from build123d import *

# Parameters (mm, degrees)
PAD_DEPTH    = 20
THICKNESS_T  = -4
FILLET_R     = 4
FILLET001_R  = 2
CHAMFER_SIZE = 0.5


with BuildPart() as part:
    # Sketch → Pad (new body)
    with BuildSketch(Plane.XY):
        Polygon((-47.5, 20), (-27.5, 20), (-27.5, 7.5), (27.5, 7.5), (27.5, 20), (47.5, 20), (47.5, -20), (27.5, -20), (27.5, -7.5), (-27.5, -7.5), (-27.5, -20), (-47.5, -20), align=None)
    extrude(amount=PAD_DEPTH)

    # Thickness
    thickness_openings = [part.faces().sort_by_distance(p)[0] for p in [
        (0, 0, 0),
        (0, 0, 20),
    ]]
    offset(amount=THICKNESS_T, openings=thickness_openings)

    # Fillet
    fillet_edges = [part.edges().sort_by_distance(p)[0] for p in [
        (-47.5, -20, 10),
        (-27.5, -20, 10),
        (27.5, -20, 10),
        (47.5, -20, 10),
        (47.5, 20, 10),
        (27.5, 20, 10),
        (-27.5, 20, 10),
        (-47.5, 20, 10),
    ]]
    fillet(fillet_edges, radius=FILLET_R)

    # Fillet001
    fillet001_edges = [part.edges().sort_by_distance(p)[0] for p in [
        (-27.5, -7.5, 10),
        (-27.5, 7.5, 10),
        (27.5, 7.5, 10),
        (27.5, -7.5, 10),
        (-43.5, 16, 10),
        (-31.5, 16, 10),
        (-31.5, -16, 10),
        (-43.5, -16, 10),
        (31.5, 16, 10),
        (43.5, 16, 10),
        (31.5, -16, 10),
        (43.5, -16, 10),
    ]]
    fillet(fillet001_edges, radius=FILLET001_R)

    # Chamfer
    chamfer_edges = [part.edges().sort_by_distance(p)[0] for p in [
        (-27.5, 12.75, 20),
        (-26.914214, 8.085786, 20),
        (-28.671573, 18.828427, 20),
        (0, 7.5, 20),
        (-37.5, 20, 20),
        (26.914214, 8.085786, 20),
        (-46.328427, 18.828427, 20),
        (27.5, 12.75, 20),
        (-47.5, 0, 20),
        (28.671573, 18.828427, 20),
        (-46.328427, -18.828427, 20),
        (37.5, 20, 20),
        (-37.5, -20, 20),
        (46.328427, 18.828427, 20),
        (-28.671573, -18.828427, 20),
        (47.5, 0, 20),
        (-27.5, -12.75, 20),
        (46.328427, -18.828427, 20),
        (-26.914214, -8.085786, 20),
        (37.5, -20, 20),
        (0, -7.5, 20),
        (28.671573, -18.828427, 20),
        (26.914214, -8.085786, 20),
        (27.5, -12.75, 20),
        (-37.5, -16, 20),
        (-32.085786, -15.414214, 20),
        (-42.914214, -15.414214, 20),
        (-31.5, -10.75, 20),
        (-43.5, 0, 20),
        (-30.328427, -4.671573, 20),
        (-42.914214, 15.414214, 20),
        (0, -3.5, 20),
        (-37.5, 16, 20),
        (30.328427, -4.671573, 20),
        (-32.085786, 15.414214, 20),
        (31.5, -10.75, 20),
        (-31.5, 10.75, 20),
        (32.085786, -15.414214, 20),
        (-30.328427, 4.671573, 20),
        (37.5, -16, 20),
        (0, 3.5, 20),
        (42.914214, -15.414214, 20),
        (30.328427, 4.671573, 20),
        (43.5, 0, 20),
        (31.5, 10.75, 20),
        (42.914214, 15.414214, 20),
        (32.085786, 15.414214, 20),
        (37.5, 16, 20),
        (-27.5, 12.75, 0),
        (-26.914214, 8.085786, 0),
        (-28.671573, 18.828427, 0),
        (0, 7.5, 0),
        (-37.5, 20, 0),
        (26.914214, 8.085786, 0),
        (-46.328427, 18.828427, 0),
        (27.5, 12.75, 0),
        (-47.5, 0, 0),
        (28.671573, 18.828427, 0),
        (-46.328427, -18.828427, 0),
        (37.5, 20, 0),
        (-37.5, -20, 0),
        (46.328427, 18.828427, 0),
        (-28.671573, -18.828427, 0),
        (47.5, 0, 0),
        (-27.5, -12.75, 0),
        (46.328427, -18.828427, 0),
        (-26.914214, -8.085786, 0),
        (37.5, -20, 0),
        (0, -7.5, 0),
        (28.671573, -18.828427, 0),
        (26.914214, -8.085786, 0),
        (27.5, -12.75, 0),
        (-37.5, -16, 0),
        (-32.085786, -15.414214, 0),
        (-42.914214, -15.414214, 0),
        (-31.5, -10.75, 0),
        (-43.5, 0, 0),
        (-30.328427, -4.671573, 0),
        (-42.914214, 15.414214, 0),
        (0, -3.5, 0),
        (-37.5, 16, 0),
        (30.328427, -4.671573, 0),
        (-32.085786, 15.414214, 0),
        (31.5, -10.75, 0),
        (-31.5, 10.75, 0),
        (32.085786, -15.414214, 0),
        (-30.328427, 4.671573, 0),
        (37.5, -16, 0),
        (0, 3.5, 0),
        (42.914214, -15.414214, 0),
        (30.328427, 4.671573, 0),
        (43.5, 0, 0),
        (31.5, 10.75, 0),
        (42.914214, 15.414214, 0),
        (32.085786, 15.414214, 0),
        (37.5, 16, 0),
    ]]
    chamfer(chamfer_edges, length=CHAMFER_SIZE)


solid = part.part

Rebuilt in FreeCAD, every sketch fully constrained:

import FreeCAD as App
import Part
import Sketcher
from FreeCAD import Vector


def edges_at(feature, points):
    """Names of the edges that pass closest to the given points."""
    edges = feature.Shape.Edges
    near = lambda p: min(range(len(edges)), key=lambda i: edges[i].distToShape(Part.Vertex(*p))[0])
    return sorted({f"Edge{near(p) + 1}" for p in points})


def faces_at(feature, points):
    """Names of the faces that lie closest to the given points."""
    faces = feature.Shape.Faces
    near = lambda p: min(range(len(faces)), key=lambda i: faces[i].distToShape(Part.Vertex(*p))[0])
    return sorted({f"Face{near(p) + 1}" for p in points})


def add_polygon(sketch, points):
    """Adds a closed chain of lines whose ends are joined by coincident constraints."""
    first, n = sketch.GeometryCount, len(points)
    for a, b in zip(points, points[1:] + points[:1]):
        sketch.addGeometry(Part.LineSegment(App.Vector(*a, 0), App.Vector(*b, 0)), False)
    for i in range(n):
        sketch.addConstraint(Sketcher.Constraint("Coincident", first + i, 2, first + (i + 1) % n, 1))

doc = App.newDocument("Part")
params = doc.addObject("Spreadsheet::Sheet", "Params")
for row, (alias, value) in enumerate([
    ("sketch1_width", "20 mm"),
    ("sketch1_width2", "55 mm"),
    ("sketch1_height", "40 mm"),
    ("sketch1_height2", "12.5 mm"),
    ("pad1_length", "20 mm"),
    ("thickness_wall", "4 mm"),
    ("fillet_radius", "4 mm"),
    ("fillet2_radius", "2 mm"),
    ("chamfer_size", "0.5 mm"),
], start=1):
    params.set(f"A{row}", alias)
    params.set(f"B{row}", "=" + value)
    params.setAlias(f"B{row}", alias)

body = doc.addObject("PartDesign::Body", "Body")

# Sketch on XY plane
sketch1 = body.newObject("Sketcher::SketchObject", "Sketch")
sketch1.AttachmentSupport = (doc.getObject("XY_Plane"), [""])
sketch1.MapMode = "FlatFace"
add_polygon(sketch1, [(-28, 20), (-48, 20), (-48, -20), (-28, -20), (-28, -8), (28, -8), (28, -20), (48, -20), (48, 20), (28, 20), (28, 8), (-28, 8)])  # lines 0-11
sketch1.addConstraint(Sketcher.Constraint("Horizontal", 0))
sketch1.addConstraint(Sketcher.Constraint("Vertical", 1))
sketch1.addConstraint(Sketcher.Constraint("Horizontal", 2))
sketch1.addConstraint(Sketcher.Constraint("Vertical", 3))
sketch1.addConstraint(Sketcher.Constraint("Horizontal", 4))
sketch1.addConstraint(Sketcher.Constraint("Vertical", 5))
sketch1.addConstraint(Sketcher.Constraint("Horizontal", 6))
sketch1.addConstraint(Sketcher.Constraint("Vertical", 7))
sketch1.addConstraint(Sketcher.Constraint("Horizontal", 8))
sketch1.addConstraint(Sketcher.Constraint("Vertical", 9))
sketch1.addConstraint(Sketcher.Constraint("Horizontal", 10))
sketch1.addConstraint(Sketcher.Constraint("Vertical", 11))
sketch1.addConstraint(Sketcher.Constraint("Symmetric", 0, 2, 6, 2, -1, 1))
sketch1.addConstraint(Sketcher.Constraint("Symmetric", 2, 2, 8, 2, -1, 1))
sketch1.addConstraint(Sketcher.Constraint("Symmetric", 4, 2, 10, 2, -1, 1))
sketch1.addConstraint(Sketcher.Constraint("Symmetric", 2, 2, 5, 2, -2))
sketch1.addConstraint(Sketcher.Constraint("DistanceX", 0, 2, 0, 1, 20.0))
sketch1.addConstraint(Sketcher.Constraint("DistanceX", 4, 1, 4, 2, 55.0))
sketch1.addConstraint(Sketcher.Constraint("DistanceY", 1, 2, 1, 1, 40.0))
sketch1.addConstraint(Sketcher.Constraint("DistanceY", 3, 1, 3, 2, 12.5))
sketch1.setExpression("Constraints[28]", "Params.sketch1_width")
sketch1.setExpression("Constraints[29]", "Params.sketch1_width2")
sketch1.setExpression("Constraints[30]", "Params.sketch1_height")
sketch1.setExpression("Constraints[31]", "Params.sketch1_height2")
pad1 = body.newObject("PartDesign::Pad", "Pad")
pad1.Profile = sketch1
pad1.setExpression("Length", "Params.pad1_length")
doc.recompute()

thickness = body.newObject("PartDesign::Thickness", "Thickness")
thickness.Base = (pad1, faces_at(pad1, [(0, 0, 0), (0, 0, 20)]))
thickness.setExpression("Value", "Params.thickness_wall")
thickness.Reversed = True
thickness.Join = "Arc"
doc.recompute()

fillet = body.newObject("PartDesign::Fillet", "Fillet")
fillet.Base = (thickness, edges_at(thickness, [
    (-47.5, -20, 10),
    (-27.5, -20, 10),
    (27.5, -20, 10),
    (47.5, -20, 10),
    (47.5, 20, 10),
    (27.5, 20, 10),
    (-27.5, 20, 10),
    (-47.5, 20, 10),
]))
fillet.setExpression("Radius", "Params.fillet_radius")
doc.recompute()

fillet2 = body.newObject("PartDesign::Fillet", "Fillet001")
fillet2.Base = (fillet, edges_at(fillet, [
    (-27.5, -7.5, 10),
    (-27.5, 7.5, 10),
    (27.5, 7.5, 10),
    (27.5, -7.5, 10),
    (-43.5, 16, 10),
    (-31.5, 16, 10),
    (-31.5, -16, 10),
    (-43.5, -16, 10),
    (31.5, 16, 10),
    (43.5, 16, 10),
    (31.5, -16, 10),
    (43.5, -16, 10),
]))
fillet2.setExpression("Radius", "Params.fillet2_radius")
doc.recompute()

chamfer = body.newObject("PartDesign::Chamfer", "Chamfer")
chamfer.Base = (fillet2, edges_at(fillet2, [
    (-27.5, 12.75, 20),
    (-26.914, 8.086, 20),
    (-28.672, 18.828, 20),
    (0, 7.5, 20),
    (-37.5, 20, 20),
    (26.914, 8.086, 20),
    (-46.328, 18.828, 20),
    (27.5, 12.75, 20),
    (-47.5, 0, 20),
    (28.672, 18.828, 20),
    (-46.328, -18.828, 20),
    (37.5, 20, 20),
    (-37.5, -20, 20),
    (46.328, 18.828, 20),
    (-28.672, -18.828, 20),
    (47.5, 0, 20),
    (-27.5, -12.75, 20),
    (46.328, -18.828, 20),
    (-26.914, -8.086, 20),
    (37.5, -20, 20),
    (0, -7.5, 20),
    (28.672, -18.828, 20),
    (26.914, -8.086, 20),
    (27.5, -12.75, 20),
    (-37.5, -16, 20),
    (-32.086, -15.414, 20),
    (-42.914, -15.414, 20),
    (-31.5, -10.75, 20),
    (-43.5, 0, 20),
    (-30.328, -4.672, 20),
    (-42.914, 15.414, 20),
    (0, -3.5, 20),
    (-37.5, 16, 20),
    (30.328, -4.672, 20),
    (-32.086, 15.414, 20),
    (31.5, -10.75, 20),
    (-31.5, 10.75, 20),
    (32.086, -15.414, 20),
    (-30.328, 4.672, 20),
    (37.5, -16, 20),
    (0, 3.5, 20),
    (42.914, -15.414, 20),
    (30.328, 4.672, 20),
    (43.5, 0, 20),
    (31.5, 10.75, 20),
    (42.914, 15.414, 20),
    (32.086, 15.414, 20),
    (37.5, 16, 20),
    (-27.5, 12.75, 0),
    (-26.914, 8.086, 0),
    (-28.672, 18.828, 0),
    (0, 7.5, 0),
    (-37.5, 20, 0),
    (26.914, 8.086, 0),
    (-46.328, 18.828, 0),
    (27.5, 12.75, 0),
    (-47.5, 0, 0),
    (28.672, 18.828, 0),
    (-46.328, -18.828, 0),
    (37.5, 20, 0),
    (-37.5, -20, 0),
    (46.328, 18.828, 0),
    (-28.672, -18.828, 0),
    (47.5, 0, 0),
    (-27.5, -12.75, 0),
    (46.328, -18.828, 0),
    (-26.914, -8.086, 0),
    (37.5, -20, 0),
    (0, -7.5, 0),
    (28.672, -18.828, 0),
    (26.914, -8.086, 0),
    (27.5, -12.75, 0),
    (-37.5, -16, 0),
    (-32.086, -15.414, 0),
    (-42.914, -15.414, 0),
    (-31.5, -10.75, 0),
    (-43.5, 0, 0),
    (-30.328, -4.672, 0),
    (-42.914, 15.414, 0),
    (0, -3.5, 0),
    (-37.5, 16, 0),
    (30.328, -4.672, 0),
    (-32.086, 15.414, 0),
    (31.5, -10.75, 0),
    (-31.5, 10.75, 0),
    (32.086, -15.414, 0),
    (-30.328, 4.672, 0),
    (37.5, -16, 0),
    (0, 3.5, 0),
    (42.914, -15.414, 0),
    (30.328, 4.672, 0),
    (43.5, 0, 0),
    (31.5, 10.75, 0),
    (42.914, 15.414, 0),
    (32.086, 15.414, 0),
    (37.5, 16, 0),
]))
chamfer.setExpression("Size", "Params.chamfer_size")

doc.recompute()
